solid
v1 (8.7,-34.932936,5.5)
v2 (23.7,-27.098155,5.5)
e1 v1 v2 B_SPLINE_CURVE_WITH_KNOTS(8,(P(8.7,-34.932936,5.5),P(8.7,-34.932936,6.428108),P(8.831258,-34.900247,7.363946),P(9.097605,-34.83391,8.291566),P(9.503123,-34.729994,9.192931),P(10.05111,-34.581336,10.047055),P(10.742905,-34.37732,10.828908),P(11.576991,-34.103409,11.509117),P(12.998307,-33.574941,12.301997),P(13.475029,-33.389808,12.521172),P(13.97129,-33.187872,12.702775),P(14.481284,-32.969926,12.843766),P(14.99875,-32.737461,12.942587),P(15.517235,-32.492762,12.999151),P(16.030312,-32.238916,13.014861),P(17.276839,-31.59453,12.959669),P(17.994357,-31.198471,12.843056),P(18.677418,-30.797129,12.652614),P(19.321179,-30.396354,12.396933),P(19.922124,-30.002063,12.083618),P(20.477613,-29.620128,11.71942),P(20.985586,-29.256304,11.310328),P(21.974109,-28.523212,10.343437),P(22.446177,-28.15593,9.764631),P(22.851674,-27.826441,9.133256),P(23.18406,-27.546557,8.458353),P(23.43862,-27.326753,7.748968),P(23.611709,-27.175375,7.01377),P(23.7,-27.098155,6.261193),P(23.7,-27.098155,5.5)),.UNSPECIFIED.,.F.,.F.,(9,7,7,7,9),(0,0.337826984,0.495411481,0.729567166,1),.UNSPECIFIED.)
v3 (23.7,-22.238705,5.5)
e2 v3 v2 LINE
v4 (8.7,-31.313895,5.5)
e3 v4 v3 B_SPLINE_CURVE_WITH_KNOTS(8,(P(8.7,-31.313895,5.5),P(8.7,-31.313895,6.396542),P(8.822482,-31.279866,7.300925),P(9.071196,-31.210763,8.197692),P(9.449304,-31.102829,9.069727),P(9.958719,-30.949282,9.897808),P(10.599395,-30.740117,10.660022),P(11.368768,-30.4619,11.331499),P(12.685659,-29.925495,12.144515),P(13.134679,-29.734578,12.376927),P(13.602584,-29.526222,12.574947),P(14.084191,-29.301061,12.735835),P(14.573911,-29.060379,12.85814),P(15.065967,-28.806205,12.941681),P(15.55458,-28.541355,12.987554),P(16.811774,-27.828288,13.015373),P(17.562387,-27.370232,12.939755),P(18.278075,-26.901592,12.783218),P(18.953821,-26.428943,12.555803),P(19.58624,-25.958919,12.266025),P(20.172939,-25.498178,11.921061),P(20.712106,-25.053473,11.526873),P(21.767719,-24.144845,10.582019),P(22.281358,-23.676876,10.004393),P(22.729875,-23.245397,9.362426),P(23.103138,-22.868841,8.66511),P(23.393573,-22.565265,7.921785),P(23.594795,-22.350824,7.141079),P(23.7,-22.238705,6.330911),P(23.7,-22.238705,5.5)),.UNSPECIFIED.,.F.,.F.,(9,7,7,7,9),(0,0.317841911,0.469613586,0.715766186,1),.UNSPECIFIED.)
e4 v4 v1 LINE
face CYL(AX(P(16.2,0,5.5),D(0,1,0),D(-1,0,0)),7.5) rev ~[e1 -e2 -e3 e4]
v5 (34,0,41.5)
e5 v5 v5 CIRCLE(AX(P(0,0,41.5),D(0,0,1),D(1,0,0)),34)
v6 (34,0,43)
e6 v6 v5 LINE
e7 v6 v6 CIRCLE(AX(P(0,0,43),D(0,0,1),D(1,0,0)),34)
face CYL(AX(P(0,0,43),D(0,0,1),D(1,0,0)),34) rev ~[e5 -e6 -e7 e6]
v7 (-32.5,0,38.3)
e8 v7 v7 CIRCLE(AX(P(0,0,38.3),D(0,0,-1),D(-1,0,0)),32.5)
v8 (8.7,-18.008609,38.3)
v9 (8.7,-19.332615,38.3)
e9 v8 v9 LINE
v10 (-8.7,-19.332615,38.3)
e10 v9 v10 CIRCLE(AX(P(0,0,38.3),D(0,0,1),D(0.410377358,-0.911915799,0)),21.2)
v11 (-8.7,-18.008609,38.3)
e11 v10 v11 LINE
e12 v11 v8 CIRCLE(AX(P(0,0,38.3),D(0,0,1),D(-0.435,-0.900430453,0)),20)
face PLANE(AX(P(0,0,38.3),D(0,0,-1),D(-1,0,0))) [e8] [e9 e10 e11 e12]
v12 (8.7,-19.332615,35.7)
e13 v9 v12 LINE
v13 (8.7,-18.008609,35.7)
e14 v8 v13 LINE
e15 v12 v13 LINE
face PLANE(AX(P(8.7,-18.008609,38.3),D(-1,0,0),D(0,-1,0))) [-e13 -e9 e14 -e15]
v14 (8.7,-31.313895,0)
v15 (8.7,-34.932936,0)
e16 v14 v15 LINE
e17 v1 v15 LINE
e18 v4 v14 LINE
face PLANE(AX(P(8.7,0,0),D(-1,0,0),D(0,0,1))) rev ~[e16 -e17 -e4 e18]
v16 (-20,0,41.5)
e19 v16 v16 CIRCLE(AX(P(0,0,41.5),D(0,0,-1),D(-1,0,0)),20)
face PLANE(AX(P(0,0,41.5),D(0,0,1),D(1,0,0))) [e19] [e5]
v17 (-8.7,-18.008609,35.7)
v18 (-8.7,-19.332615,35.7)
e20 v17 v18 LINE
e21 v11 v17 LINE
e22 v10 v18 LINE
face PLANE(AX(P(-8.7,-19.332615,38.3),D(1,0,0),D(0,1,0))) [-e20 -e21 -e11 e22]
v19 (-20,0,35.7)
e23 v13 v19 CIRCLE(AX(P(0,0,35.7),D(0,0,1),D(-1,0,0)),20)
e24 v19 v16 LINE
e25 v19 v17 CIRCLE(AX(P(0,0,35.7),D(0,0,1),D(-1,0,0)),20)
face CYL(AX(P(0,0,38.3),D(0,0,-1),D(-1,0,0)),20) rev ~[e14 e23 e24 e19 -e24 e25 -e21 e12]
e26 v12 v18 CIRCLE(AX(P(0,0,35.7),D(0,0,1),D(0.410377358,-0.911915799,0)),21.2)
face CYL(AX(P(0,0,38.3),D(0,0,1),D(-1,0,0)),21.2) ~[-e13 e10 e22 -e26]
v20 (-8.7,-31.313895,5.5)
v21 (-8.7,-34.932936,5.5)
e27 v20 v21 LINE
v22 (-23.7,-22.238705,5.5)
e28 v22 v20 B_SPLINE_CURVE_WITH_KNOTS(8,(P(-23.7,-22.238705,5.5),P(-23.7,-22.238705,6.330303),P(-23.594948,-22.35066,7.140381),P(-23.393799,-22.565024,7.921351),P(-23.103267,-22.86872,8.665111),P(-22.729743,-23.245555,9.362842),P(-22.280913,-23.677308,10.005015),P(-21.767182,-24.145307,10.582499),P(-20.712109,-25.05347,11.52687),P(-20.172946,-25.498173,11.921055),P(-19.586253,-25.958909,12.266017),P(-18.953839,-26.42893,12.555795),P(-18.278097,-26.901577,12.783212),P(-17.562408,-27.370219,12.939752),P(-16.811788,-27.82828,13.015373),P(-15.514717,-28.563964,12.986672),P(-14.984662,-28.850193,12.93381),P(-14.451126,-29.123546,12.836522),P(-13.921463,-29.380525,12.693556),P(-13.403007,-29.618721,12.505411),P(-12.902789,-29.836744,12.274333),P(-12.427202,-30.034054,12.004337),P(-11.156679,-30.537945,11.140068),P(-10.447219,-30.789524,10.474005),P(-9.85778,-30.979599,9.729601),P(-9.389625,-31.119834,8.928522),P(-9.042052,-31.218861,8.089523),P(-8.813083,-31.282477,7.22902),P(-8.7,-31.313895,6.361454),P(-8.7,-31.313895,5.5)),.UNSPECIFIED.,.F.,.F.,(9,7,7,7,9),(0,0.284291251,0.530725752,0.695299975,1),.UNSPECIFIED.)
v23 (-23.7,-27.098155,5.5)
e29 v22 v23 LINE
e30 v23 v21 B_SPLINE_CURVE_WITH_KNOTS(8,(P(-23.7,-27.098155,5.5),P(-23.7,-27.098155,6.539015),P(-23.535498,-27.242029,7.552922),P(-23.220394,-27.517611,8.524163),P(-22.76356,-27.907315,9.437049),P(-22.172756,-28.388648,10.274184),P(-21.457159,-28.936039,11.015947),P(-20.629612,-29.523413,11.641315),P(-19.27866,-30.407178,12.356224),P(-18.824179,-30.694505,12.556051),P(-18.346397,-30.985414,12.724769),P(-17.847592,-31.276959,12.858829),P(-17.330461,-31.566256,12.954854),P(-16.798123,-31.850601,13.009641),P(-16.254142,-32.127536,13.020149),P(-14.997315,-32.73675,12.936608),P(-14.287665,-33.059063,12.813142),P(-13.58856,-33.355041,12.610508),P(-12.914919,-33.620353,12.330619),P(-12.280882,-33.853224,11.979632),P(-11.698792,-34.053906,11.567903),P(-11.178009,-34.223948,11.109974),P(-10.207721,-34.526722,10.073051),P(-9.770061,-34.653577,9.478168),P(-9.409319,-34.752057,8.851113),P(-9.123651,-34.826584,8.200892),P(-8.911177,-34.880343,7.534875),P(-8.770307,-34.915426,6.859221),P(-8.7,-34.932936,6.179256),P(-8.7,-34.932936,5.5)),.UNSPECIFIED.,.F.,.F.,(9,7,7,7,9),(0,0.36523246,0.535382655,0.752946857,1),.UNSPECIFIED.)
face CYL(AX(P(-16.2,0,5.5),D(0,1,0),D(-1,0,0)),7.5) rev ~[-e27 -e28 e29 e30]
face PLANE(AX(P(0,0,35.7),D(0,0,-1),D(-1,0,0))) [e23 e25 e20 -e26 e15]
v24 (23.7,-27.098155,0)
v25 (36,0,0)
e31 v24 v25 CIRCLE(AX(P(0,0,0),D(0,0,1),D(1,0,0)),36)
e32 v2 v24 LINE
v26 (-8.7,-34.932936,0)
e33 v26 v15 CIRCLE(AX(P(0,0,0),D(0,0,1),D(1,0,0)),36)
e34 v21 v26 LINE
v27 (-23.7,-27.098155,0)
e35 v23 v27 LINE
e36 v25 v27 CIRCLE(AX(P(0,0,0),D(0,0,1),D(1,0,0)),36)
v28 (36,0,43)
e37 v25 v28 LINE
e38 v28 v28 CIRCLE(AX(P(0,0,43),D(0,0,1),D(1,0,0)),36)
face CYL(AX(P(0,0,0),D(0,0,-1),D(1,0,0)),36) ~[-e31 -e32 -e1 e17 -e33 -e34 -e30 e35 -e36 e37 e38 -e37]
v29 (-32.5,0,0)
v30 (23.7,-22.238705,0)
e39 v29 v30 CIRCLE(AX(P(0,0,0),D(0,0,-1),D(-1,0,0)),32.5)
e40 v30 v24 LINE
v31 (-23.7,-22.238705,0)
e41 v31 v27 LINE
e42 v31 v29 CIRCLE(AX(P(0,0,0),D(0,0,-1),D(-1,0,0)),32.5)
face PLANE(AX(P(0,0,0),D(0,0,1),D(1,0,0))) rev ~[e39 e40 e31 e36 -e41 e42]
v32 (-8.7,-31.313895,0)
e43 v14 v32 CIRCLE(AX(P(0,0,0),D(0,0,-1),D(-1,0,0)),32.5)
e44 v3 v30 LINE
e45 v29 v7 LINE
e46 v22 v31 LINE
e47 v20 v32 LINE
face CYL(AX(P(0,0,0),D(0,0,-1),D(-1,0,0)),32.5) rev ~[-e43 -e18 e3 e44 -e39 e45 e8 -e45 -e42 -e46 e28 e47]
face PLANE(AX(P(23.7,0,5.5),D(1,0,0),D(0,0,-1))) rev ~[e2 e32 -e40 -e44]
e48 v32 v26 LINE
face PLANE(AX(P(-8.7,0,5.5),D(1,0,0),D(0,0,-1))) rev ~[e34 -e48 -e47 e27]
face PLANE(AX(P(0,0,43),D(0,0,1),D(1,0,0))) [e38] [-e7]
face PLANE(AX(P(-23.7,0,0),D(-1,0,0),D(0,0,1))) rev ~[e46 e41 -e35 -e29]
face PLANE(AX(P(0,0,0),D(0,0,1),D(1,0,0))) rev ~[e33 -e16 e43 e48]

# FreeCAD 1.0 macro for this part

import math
import FreeCAD as App
import Part
import Sketcher
Q = App.Units.Quantity

doc = App.newDocument("Part")
params = doc.addObject("Spreadsheet::Sheet", "Params")
for row, (alias, value) in enumerate([
    ("sketch1_diameter", "72 mm"),
    ("pad1_length", "43 mm"),
    ("sketch2_diameter", "68 mm"),
    ("pocket1_length", "1.5 mm"),
    ("sketch3_diameter", "65 mm"),
    ("pocket2_length", "38.3 mm"),
    ("sketch4_diameter", "42.4 mm"),
    ("pad2_length", "2.6 mm"),
    ("sketch5_diameter", "40 mm"),
    ("sketch6_radius", "7.5 mm"),
    ("sketch6_height", "5.5 mm"),
    ("sketch7_radius", "20 mm"),
    ("sketch7_radius2", "21.2 mm"),
    ("pocket5_length", "3 mm"),
], start=1):
    params.set(f"A{row}", alias)
    params.set(f"B{row}", "=" + value)
    params.setAlias(f"B{row}", alias)

body = doc.addObject("PartDesign::Body", "Body")

sketch1 = doc.addObject("Sketcher::SketchObject", "Sketch")
body.addObject(sketch1)
sketch1.AttachmentSupport = (doc.XY_Plane, [""])
sketch1.MapMode = "FlatFace"
sketch1.addGeometry(Part.Circle(App.Vector(0, 0, 0), App.Vector(0, 0, 1), 36), False)
sketch1.addConstraint(Sketcher.Constraint("Coincident", 0, 3, -1, 1))
sketch1.addConstraint(Sketcher.Constraint("Diameter", 0, Q("72 mm")))
sketch1.setExpression("Constraints[1]", "Params.sketch1_diameter")
pad1 = doc.addObject("PartDesign::Pad", "Pad")
body.addObject(pad1)
pad1.Profile = sketch1
pad1.setExpression("Length", "Params.pad1_length")

sketch2 = doc.addObject("Sketcher::SketchObject", "Sketch001")
body.addObject(sketch2)
sketch2.AttachmentSupport = (doc.XY_Plane, [""])
sketch2.MapMode = "FlatFace"
sketch2.AttachmentOffset = App.Placement(App.Vector(0, 0, 43), App.Rotation())
sketch2.addGeometry(Part.Circle(App.Vector(0, 0, 0), App.Vector(0, 0, 1), 34), False)
sketch2.addConstraint(Sketcher.Constraint("Coincident", 0, 3, -1, 1))
sketch2.addConstraint(Sketcher.Constraint("Diameter", 0, Q("68 mm")))
sketch2.setExpression("Constraints[1]", "Params.sketch2_diameter")
pocket1 = doc.addObject("PartDesign::Pocket", "Pocket")
body.addObject(pocket1)
pocket1.Profile = sketch2
pocket1.setExpression("Length", "Params.pocket1_length")

sketch3 = doc.addObject("Sketcher::SketchObject", "Sketch002")
body.addObject(sketch3)
sketch3.AttachmentSupport = (doc.XY_Plane, [""])
sketch3.MapMode = "FlatFace"
sketch3.addGeometry(Part.Circle(App.Vector(0, 0, 0), App.Vector(0, 0, 1), 32.5), False)
sketch3.addConstraint(Sketcher.Constraint("Coincident", 0, 3, -1, 1))
sketch3.addConstraint(Sketcher.Constraint("Diameter", 0, Q("65 mm")))
sketch3.setExpression("Constraints[1]", "Params.sketch3_diameter")
pocket2 = doc.addObject("PartDesign::Pocket", "Pocket001")
body.addObject(pocket2)
pocket2.Profile = sketch3
pocket2.setExpression("Length", "Params.pocket2_length")
pocket2.Reversed = True

sketch4 = doc.addObject("Sketcher::SketchObject", "Sketch003")
body.addObject(sketch4)
sketch4.AttachmentSupport = (doc.XY_Plane, [""])
sketch4.MapMode = "FlatFace"
sketch4.AttachmentOffset = App.Placement(App.Vector(0, 0, 38.3), App.Rotation())
sketch4.addGeometry(Part.Circle(App.Vector(0, 0, 0), App.Vector(0, 0, 1), 21.2), False)
sketch4.addConstraint(Sketcher.Constraint("Coincident", 0, 3, -1, 1))
sketch4.addConstraint(Sketcher.Constraint("Diameter", 0, Q("42.4 mm")))
sketch4.setExpression("Constraints[1]", "Params.sketch4_diameter")
pad2 = doc.addObject("PartDesign::Pad", "Pad001")
body.addObject(pad2)
pad2.Profile = sketch4
pad2.setExpression("Length", "Params.pad2_length")
pad2.Reversed = True

sketch5 = doc.addObject("Sketcher::SketchObject", "Sketch004")
body.addObject(sketch5)
sketch5.AttachmentSupport = (doc.XY_Plane, [""])
sketch5.MapMode = "FlatFace"
sketch5.AttachmentOffset = App.Placement(App.Vector(0, 0, 38.3), App.Rotation())
sketch5.addGeometry(Part.Circle(App.Vector(0, 0, 0), App.Vector(0, 0, 1), 20), False)
sketch5.addConstraint(Sketcher.Constraint("Coincident", 0, 3, -1, 1))
sketch5.addConstraint(Sketcher.Constraint("Diameter", 0, Q("40 mm")))
sketch5.setExpression("Constraints[1]", "Params.sketch5_diameter")
pocket3 = doc.addObject("PartDesign::Pocket", "Pocket002")
body.addObject(pocket3)
pocket3.Profile = sketch5
pocket3.Type = "ThroughAll"
pocket3.Midplane = True

sketch6 = doc.addObject("Sketcher::SketchObject", "Sketch005")
body.addObject(sketch6)
sketch6.AttachmentSupport = (doc.XZ_Plane, [""])
sketch6.MapMode = "FlatFace"
sketch6.addGeometry(Part.ArcOfCircle(Part.Circle(App.Vector(16.2, 5.5, 0), App.Vector(0, 0, 1), 7.5), math.radians(0), math.radians(180)), False)
sketch6.addGeometry(Part.LineSegment(App.Vector(23.7, 5.5, 0), App.Vector(23.7, 0, 0)), False)
sketch6.addGeometry(Part.LineSegment(App.Vector(23.7, 0, 0), App.Vector(21.29902, 0, 0)), False)
sketch6.addGeometry(Part.ArcOfCircle(Part.Circle(App.Vector(16.2, 5.5, 0), App.Vector(0, 0, 1), 7.5), math.radians(-132.833428), math.radians(-47.166572)), False)
sketch6.addGeometry(Part.LineSegment(App.Vector(11.10098, 0, 0), App.Vector(8.7, 0, 0)), False)
sketch6.addGeometry(Part.LineSegment(App.Vector(8.7, 0, 0), App.Vector(8.7, 5.5, 0)), False)
sketch6.addGeometry(Part.LineSegment(App.Vector(-23.7, 0, 0), App.Vector(-23.7, 5.5, 0)), False)
sketch6.addGeometry(Part.ArcOfCircle(Part.Circle(App.Vector(-16.2, 5.5, 0), App.Vector(0, 0, 1), 7.5), math.radians(0), math.radians(180)), False)
sketch6.addGeometry(Part.LineSegment(App.Vector(-8.7, 5.5, 0), App.Vector(-8.7, 0, 0)), False)
sketch6.addGeometry(Part.LineSegment(App.Vector(-8.7, 0, 0), App.Vector(-11.10098, 0, 0)), False)
sketch6.addGeometry(Part.ArcOfCircle(Part.Circle(App.Vector(-16.2, 5.5, 0), App.Vector(0, 0, 1), 7.5), math.radians(-132.833428), math.radians(-47.166572)), False)
sketch6.addGeometry(Part.LineSegment(App.Vector(-21.29902, 0, 0), App.Vector(-23.7, 0, 0)), False)
sketch6.addConstraint(Sketcher.Constraint("Tangent", 0, 1, 1, 1))
sketch6.addConstraint(Sketcher.Constraint("Coincident", 1, 2, 2, 1))
sketch6.addConstraint(Sketcher.Constraint("Coincident", 2, 2, 3, 2))
sketch6.addConstraint(Sketcher.Constraint("Coincident", 3, 1, 4, 1))
sketch6.addConstraint(Sketcher.Constraint("Coincident", 4, 2, 5, 1))
sketch6.addConstraint(Sketcher.Constraint("Tangent", 5, 2, 0, 2))
sketch6.addConstraint(Sketcher.Constraint("Tangent", 6, 2, 7, 2))
sketch6.addConstraint(Sketcher.Constraint("Tangent", 7, 1, 8, 1))
sketch6.addConstraint(Sketcher.Constraint("Coincident", 8, 2, 9, 1))
sketch6.addConstraint(Sketcher.Constraint("Coincident", 9, 2, 10, 2))
sketch6.addConstraint(Sketcher.Constraint("Coincident", 10, 1, 11, 1))
sketch6.addConstraint(Sketcher.Constraint("Coincident", 11, 2, 6, 1))
sketch6.addConstraint(Sketcher.Constraint("Vertical", 1))
sketch6.addConstraint(Sketcher.Constraint("Horizontal", 2))
sketch6.addConstraint(Sketcher.Constraint("Horizontal", 4))
sketch6.addConstraint(Sketcher.Constraint("Vertical", 5))
sketch6.addConstraint(Sketcher.Constraint("Vertical", 6))
sketch6.addConstraint(Sketcher.Constraint("Vertical", 8))
sketch6.addConstraint(Sketcher.Constraint("Horizontal", 9))
sketch6.addConstraint(Sketcher.Constraint("Horizontal", 11))
sketch6.addConstraint(Sketcher.Constraint("Coincident", 3, 3, 0, 3))
sketch6.addConstraint(Sketcher.Constraint("Coincident", 10, 3, 7, 3))
sketch6.addConstraint(Sketcher.Constraint("Equal", 0, 3))
sketch6.addConstraint(Sketcher.Constraint("Equal", 3, 7))
sketch6.addConstraint(Sketcher.Constraint("Equal", 7, 10))
sketch6.addConstraint(Sketcher.Constraint("Symmetric", 4, 2, 8, 2, -1, 1))
sketch6.addConstraint(Sketcher.Constraint("Symmetric", 2, 2, 10, 1, -1, 1))
sketch6.addConstraint(Sketcher.Constraint("Symmetric", 3, 1, 9, 2, -2))
sketch6.addConstraint(Sketcher.Constraint("Radius", 0, Q("7.5 mm")))
sketch6.addConstraint(Sketcher.Constraint("DistanceY", 1, 2, 1, 1, Q("5.5 mm")))
sketch6.addConstraint(Sketcher.Constraint("DistanceX", -1, 1, 0, 3, Q("16.2 mm")))
sketch6.setExpression("Constraints[28]", "Params.sketch6_radius")
sketch6.setExpression("Constraints[29]", "Params.sketch6_height")
pocket4 = doc.addObject("PartDesign::Pocket", "Pocket003")
body.addObject(pocket4)
pocket4.Profile = sketch6
pocket4.Type = "ThroughAll"
pocket4.Reversed = True

sketch7 = doc.addObject("Sketcher::SketchObject", "Sketch006")
body.addObject(sketch7)
sketch7.AttachmentSupport = (doc.XY_Plane, [""])
sketch7.MapMode = "FlatFace"
sketch7.AttachmentOffset = App.Placement(App.Vector(0, 0, 38.3), App.Rotation())
sketch7.addGeometry(Part.LineSegment(App.Vector(8.7, -18.008609, 0), App.Vector(8.7, -19.332615, 0)), False)
sketch7.addGeometry(Part.ArcOfCircle(Part.Circle(App.Vector(0, 0, 0), App.Vector(0, 0, 1), 21.2), math.radians(-114.228542), math.radians(-65.771458)), False)
sketch7.addGeometry(Part.LineSegment(App.Vector(-8.7, -19.332615, 0), App.Vector(-8.7, -18.008609, 0)), False)
sketch7.addGeometry(Part.ArcOfCircle(Part.Circle(App.Vector(0, 0, 0), App.Vector(0, 0, 1), 20), math.radians(-115.785294), math.radians(-64.214706)), False)
sketch7.addConstraint(Sketcher.Constraint("Coincident", 0, 2, 1, 2))
sketch7.addConstraint(Sketcher.Constraint("Coincident", 1, 1, 2, 1))
sketch7.addConstraint(Sketcher.Constraint("Coincident", 2, 2, 3, 1))
sketch7.addConstraint(Sketcher.Constraint("Coincident", 3, 2, 0, 1))
sketch7.addConstraint(Sketcher.Constraint("Vertical", 0))
sketch7.addConstraint(Sketcher.Constraint("Vertical", 2))
sketch7.addConstraint(Sketcher.Constraint("Coincident", 1, 3, -1, 1))
sketch7.addConstraint(Sketcher.Constraint("Coincident", 3, 3, -1, 1))
sketch7.addConstraint(Sketcher.Constraint("Horizontal", 0, 2, 1, 1))
sketch7.addConstraint(Sketcher.Constraint("Radius", 3, Q("20 mm")))
sketch7.addConstraint(Sketcher.Constraint("Radius", 1, Q("21.2 mm")))
sketch7.addConstraint(Sketcher.Constraint("DistanceX", -1, 1, 0, 2, Q("8.7 mm")))
sketch7.setExpression("Constraints[9]", "Params.sketch7_radius")
sketch7.setExpression("Constraints[10]", "Params.sketch7_radius2")
pocket5 = doc.addObject("PartDesign::Pocket", "Pocket004")
body.addObject(pocket5)
pocket5.Profile = sketch7
pocket5.setExpression("Length", "Params.pocket5_length")

doc.recompute()
